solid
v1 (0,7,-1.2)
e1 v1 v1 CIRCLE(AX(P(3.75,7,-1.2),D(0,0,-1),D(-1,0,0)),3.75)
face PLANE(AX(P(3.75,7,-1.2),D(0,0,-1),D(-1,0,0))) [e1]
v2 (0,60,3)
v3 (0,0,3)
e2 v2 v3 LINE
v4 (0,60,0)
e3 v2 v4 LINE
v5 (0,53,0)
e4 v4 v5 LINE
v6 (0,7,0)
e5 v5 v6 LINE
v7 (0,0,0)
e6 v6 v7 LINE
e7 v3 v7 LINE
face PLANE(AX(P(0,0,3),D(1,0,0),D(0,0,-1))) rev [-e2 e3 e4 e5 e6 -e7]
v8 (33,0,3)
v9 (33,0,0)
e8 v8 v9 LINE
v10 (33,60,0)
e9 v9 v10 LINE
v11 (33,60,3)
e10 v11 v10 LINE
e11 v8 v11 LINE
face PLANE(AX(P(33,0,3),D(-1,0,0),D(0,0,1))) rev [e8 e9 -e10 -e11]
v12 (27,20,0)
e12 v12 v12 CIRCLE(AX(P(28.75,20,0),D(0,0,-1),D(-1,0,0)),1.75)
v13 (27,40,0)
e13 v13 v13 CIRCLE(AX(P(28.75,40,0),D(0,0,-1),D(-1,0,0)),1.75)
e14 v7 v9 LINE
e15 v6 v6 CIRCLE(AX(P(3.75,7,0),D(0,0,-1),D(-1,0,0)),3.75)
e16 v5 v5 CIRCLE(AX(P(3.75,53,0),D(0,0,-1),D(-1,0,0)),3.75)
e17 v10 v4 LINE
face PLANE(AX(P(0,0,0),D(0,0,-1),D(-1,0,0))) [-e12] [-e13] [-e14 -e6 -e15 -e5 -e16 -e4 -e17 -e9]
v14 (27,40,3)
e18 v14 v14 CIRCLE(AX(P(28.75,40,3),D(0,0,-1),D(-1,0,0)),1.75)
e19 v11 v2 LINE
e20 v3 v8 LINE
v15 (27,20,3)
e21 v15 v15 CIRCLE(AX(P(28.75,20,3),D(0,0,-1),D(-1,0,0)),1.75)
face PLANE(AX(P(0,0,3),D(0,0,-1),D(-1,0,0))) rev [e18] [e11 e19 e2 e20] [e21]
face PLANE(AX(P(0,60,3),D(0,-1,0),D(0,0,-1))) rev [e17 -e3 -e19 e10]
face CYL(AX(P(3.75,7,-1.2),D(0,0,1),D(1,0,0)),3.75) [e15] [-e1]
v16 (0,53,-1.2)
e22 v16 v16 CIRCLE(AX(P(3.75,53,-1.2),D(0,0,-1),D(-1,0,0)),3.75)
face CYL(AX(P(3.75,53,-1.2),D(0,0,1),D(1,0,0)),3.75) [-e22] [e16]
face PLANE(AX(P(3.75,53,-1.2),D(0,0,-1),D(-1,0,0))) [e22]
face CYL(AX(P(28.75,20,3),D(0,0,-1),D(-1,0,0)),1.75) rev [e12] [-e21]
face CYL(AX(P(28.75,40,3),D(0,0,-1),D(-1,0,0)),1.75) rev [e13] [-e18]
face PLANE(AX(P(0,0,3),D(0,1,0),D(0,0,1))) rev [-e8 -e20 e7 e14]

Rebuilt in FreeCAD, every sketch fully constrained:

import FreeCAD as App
import Part
import Sketcher


def add_polygon(sketch, points):
    """Adds a closed chain of lines whose ends are joined by coincident constraints."""
    first, n = sketch.GeometryCount, len(points)
    for a, b in zip(points, points[1:] + points[:1]):
        sketch.addGeometry(Part.LineSegment(App.Vector(*a, 0), App.Vector(*b, 0)), False)
    for i in range(n):
        sketch.addConstraint(Sketcher.Constraint("Coincident", first + i, 2, first + (i + 1) % n, 1))

doc = App.newDocument("Part")
body = doc.addObject("PartDesign::Body", "Body")

sketch1 = doc.addObject("Sketcher::SketchObject", "Sketch")
body.addObject(sketch1)
sketch1.AttachmentSupport = (doc.XY_Plane, [""])
sketch1.MapMode = "FlatFace"
add_polygon(sketch1, [(0, 60), (0, 0), (33, 0), (33, 60)])
sketch1.addConstraint(Sketcher.Constraint("Vertical", 0))
sketch1.addConstraint(Sketcher.Constraint("Horizontal", 1))
sketch1.addConstraint(Sketcher.Constraint("Vertical", 2))
sketch1.addConstraint(Sketcher.Constraint("Horizontal", 3))
sketch1.addConstraint(Sketcher.Constraint("Coincident", 0, 2, -1, 1))
sketch1.addConstraint(Sketcher.Constraint("DistanceX", 1, 1, 1, 2, 33.0))
sketch1.addConstraint(Sketcher.Constraint("DistanceY", 0, 2, 0, 1, 60.0))
pad1 = doc.addObject("PartDesign::Pad", "Pad")
body.addObject(pad1)
pad1.Profile = sketch1
pad1.Length = 3

sketch2 = doc.addObject("Sketcher::SketchObject", "Sketch001")
body.addObject(sketch2)
sketch2.AttachmentSupport = (doc.XY_Plane, [""])
sketch2.MapMode = "FlatFace"
sketch2.addGeometry(Part.Circle(App.Vector(3.75, 53, 0), App.Vector(0, 0, 1), 3.75), False)
sketch2.addGeometry(Part.Circle(App.Vector(3.75, 7, 0), App.Vector(0, 0, 1), 3.75), False)
sketch2.addConstraint(Sketcher.Constraint("Equal", 0, 1))
sketch2.addConstraint(Sketcher.Constraint("Vertical", 0, 3, 1, 3))
sketch2.addConstraint(Sketcher.Constraint("Diameter", 0, 7.5))
sketch2.addConstraint(Sketcher.Constraint("DistanceY", -1, 1, 0, 3, 53.0))
sketch2.addConstraint(Sketcher.Constraint("DistanceY", -1, 1, 1, 3, 7.0))
sketch2.addConstraint(Sketcher.Constraint("DistanceX", -1, 1, 0, 3, 3.75))
pad2 = doc.addObject("PartDesign::Pad", "Pad001")
body.addObject(pad2)
pad2.Profile = sketch2
pad2.Length = 1.2
pad2.Reversed = True

sketch3 = doc.addObject("Sketcher::SketchObject", "Sketch002")
body.addObject(sketch3)
sketch3.AttachmentSupport = (doc.XY_Plane, [""])
sketch3.MapMode = "FlatFace"
sketch3.addGeometry(Part.Circle(App.Vector(28.75, 40, 0), App.Vector(0, 0, 1), 1.75), False)
sketch3.addGeometry(Part.Circle(App.Vector(28.75, 20, 0), App.Vector(0, 0, 1), 1.75), False)
sketch3.addConstraint(Sketcher.Constraint("Equal", 0, 1))
sketch3.addConstraint(Sketcher.Constraint("Vertical", 0, 3, 1, 3))
sketch3.addConstraint(Sketcher.Constraint("Diameter", 0, 3.5))
sketch3.addConstraint(Sketcher.Constraint("DistanceY", -1, 1, 0, 3, 40.0))
sketch3.addConstraint(Sketcher.Constraint("DistanceY", -1, 1, 1, 3, 20.0))
sketch3.addConstraint(Sketcher.Constraint("DistanceX", -1, 1, 0, 3, 28.75))
pocket1 = doc.addObject("PartDesign::Pocket", "Pocket")
body.addObject(pocket1)
pocket1.Profile = sketch3
pocket1.Type = "ThroughAll"
pocket1.Reversed = True

doc.recompute()
